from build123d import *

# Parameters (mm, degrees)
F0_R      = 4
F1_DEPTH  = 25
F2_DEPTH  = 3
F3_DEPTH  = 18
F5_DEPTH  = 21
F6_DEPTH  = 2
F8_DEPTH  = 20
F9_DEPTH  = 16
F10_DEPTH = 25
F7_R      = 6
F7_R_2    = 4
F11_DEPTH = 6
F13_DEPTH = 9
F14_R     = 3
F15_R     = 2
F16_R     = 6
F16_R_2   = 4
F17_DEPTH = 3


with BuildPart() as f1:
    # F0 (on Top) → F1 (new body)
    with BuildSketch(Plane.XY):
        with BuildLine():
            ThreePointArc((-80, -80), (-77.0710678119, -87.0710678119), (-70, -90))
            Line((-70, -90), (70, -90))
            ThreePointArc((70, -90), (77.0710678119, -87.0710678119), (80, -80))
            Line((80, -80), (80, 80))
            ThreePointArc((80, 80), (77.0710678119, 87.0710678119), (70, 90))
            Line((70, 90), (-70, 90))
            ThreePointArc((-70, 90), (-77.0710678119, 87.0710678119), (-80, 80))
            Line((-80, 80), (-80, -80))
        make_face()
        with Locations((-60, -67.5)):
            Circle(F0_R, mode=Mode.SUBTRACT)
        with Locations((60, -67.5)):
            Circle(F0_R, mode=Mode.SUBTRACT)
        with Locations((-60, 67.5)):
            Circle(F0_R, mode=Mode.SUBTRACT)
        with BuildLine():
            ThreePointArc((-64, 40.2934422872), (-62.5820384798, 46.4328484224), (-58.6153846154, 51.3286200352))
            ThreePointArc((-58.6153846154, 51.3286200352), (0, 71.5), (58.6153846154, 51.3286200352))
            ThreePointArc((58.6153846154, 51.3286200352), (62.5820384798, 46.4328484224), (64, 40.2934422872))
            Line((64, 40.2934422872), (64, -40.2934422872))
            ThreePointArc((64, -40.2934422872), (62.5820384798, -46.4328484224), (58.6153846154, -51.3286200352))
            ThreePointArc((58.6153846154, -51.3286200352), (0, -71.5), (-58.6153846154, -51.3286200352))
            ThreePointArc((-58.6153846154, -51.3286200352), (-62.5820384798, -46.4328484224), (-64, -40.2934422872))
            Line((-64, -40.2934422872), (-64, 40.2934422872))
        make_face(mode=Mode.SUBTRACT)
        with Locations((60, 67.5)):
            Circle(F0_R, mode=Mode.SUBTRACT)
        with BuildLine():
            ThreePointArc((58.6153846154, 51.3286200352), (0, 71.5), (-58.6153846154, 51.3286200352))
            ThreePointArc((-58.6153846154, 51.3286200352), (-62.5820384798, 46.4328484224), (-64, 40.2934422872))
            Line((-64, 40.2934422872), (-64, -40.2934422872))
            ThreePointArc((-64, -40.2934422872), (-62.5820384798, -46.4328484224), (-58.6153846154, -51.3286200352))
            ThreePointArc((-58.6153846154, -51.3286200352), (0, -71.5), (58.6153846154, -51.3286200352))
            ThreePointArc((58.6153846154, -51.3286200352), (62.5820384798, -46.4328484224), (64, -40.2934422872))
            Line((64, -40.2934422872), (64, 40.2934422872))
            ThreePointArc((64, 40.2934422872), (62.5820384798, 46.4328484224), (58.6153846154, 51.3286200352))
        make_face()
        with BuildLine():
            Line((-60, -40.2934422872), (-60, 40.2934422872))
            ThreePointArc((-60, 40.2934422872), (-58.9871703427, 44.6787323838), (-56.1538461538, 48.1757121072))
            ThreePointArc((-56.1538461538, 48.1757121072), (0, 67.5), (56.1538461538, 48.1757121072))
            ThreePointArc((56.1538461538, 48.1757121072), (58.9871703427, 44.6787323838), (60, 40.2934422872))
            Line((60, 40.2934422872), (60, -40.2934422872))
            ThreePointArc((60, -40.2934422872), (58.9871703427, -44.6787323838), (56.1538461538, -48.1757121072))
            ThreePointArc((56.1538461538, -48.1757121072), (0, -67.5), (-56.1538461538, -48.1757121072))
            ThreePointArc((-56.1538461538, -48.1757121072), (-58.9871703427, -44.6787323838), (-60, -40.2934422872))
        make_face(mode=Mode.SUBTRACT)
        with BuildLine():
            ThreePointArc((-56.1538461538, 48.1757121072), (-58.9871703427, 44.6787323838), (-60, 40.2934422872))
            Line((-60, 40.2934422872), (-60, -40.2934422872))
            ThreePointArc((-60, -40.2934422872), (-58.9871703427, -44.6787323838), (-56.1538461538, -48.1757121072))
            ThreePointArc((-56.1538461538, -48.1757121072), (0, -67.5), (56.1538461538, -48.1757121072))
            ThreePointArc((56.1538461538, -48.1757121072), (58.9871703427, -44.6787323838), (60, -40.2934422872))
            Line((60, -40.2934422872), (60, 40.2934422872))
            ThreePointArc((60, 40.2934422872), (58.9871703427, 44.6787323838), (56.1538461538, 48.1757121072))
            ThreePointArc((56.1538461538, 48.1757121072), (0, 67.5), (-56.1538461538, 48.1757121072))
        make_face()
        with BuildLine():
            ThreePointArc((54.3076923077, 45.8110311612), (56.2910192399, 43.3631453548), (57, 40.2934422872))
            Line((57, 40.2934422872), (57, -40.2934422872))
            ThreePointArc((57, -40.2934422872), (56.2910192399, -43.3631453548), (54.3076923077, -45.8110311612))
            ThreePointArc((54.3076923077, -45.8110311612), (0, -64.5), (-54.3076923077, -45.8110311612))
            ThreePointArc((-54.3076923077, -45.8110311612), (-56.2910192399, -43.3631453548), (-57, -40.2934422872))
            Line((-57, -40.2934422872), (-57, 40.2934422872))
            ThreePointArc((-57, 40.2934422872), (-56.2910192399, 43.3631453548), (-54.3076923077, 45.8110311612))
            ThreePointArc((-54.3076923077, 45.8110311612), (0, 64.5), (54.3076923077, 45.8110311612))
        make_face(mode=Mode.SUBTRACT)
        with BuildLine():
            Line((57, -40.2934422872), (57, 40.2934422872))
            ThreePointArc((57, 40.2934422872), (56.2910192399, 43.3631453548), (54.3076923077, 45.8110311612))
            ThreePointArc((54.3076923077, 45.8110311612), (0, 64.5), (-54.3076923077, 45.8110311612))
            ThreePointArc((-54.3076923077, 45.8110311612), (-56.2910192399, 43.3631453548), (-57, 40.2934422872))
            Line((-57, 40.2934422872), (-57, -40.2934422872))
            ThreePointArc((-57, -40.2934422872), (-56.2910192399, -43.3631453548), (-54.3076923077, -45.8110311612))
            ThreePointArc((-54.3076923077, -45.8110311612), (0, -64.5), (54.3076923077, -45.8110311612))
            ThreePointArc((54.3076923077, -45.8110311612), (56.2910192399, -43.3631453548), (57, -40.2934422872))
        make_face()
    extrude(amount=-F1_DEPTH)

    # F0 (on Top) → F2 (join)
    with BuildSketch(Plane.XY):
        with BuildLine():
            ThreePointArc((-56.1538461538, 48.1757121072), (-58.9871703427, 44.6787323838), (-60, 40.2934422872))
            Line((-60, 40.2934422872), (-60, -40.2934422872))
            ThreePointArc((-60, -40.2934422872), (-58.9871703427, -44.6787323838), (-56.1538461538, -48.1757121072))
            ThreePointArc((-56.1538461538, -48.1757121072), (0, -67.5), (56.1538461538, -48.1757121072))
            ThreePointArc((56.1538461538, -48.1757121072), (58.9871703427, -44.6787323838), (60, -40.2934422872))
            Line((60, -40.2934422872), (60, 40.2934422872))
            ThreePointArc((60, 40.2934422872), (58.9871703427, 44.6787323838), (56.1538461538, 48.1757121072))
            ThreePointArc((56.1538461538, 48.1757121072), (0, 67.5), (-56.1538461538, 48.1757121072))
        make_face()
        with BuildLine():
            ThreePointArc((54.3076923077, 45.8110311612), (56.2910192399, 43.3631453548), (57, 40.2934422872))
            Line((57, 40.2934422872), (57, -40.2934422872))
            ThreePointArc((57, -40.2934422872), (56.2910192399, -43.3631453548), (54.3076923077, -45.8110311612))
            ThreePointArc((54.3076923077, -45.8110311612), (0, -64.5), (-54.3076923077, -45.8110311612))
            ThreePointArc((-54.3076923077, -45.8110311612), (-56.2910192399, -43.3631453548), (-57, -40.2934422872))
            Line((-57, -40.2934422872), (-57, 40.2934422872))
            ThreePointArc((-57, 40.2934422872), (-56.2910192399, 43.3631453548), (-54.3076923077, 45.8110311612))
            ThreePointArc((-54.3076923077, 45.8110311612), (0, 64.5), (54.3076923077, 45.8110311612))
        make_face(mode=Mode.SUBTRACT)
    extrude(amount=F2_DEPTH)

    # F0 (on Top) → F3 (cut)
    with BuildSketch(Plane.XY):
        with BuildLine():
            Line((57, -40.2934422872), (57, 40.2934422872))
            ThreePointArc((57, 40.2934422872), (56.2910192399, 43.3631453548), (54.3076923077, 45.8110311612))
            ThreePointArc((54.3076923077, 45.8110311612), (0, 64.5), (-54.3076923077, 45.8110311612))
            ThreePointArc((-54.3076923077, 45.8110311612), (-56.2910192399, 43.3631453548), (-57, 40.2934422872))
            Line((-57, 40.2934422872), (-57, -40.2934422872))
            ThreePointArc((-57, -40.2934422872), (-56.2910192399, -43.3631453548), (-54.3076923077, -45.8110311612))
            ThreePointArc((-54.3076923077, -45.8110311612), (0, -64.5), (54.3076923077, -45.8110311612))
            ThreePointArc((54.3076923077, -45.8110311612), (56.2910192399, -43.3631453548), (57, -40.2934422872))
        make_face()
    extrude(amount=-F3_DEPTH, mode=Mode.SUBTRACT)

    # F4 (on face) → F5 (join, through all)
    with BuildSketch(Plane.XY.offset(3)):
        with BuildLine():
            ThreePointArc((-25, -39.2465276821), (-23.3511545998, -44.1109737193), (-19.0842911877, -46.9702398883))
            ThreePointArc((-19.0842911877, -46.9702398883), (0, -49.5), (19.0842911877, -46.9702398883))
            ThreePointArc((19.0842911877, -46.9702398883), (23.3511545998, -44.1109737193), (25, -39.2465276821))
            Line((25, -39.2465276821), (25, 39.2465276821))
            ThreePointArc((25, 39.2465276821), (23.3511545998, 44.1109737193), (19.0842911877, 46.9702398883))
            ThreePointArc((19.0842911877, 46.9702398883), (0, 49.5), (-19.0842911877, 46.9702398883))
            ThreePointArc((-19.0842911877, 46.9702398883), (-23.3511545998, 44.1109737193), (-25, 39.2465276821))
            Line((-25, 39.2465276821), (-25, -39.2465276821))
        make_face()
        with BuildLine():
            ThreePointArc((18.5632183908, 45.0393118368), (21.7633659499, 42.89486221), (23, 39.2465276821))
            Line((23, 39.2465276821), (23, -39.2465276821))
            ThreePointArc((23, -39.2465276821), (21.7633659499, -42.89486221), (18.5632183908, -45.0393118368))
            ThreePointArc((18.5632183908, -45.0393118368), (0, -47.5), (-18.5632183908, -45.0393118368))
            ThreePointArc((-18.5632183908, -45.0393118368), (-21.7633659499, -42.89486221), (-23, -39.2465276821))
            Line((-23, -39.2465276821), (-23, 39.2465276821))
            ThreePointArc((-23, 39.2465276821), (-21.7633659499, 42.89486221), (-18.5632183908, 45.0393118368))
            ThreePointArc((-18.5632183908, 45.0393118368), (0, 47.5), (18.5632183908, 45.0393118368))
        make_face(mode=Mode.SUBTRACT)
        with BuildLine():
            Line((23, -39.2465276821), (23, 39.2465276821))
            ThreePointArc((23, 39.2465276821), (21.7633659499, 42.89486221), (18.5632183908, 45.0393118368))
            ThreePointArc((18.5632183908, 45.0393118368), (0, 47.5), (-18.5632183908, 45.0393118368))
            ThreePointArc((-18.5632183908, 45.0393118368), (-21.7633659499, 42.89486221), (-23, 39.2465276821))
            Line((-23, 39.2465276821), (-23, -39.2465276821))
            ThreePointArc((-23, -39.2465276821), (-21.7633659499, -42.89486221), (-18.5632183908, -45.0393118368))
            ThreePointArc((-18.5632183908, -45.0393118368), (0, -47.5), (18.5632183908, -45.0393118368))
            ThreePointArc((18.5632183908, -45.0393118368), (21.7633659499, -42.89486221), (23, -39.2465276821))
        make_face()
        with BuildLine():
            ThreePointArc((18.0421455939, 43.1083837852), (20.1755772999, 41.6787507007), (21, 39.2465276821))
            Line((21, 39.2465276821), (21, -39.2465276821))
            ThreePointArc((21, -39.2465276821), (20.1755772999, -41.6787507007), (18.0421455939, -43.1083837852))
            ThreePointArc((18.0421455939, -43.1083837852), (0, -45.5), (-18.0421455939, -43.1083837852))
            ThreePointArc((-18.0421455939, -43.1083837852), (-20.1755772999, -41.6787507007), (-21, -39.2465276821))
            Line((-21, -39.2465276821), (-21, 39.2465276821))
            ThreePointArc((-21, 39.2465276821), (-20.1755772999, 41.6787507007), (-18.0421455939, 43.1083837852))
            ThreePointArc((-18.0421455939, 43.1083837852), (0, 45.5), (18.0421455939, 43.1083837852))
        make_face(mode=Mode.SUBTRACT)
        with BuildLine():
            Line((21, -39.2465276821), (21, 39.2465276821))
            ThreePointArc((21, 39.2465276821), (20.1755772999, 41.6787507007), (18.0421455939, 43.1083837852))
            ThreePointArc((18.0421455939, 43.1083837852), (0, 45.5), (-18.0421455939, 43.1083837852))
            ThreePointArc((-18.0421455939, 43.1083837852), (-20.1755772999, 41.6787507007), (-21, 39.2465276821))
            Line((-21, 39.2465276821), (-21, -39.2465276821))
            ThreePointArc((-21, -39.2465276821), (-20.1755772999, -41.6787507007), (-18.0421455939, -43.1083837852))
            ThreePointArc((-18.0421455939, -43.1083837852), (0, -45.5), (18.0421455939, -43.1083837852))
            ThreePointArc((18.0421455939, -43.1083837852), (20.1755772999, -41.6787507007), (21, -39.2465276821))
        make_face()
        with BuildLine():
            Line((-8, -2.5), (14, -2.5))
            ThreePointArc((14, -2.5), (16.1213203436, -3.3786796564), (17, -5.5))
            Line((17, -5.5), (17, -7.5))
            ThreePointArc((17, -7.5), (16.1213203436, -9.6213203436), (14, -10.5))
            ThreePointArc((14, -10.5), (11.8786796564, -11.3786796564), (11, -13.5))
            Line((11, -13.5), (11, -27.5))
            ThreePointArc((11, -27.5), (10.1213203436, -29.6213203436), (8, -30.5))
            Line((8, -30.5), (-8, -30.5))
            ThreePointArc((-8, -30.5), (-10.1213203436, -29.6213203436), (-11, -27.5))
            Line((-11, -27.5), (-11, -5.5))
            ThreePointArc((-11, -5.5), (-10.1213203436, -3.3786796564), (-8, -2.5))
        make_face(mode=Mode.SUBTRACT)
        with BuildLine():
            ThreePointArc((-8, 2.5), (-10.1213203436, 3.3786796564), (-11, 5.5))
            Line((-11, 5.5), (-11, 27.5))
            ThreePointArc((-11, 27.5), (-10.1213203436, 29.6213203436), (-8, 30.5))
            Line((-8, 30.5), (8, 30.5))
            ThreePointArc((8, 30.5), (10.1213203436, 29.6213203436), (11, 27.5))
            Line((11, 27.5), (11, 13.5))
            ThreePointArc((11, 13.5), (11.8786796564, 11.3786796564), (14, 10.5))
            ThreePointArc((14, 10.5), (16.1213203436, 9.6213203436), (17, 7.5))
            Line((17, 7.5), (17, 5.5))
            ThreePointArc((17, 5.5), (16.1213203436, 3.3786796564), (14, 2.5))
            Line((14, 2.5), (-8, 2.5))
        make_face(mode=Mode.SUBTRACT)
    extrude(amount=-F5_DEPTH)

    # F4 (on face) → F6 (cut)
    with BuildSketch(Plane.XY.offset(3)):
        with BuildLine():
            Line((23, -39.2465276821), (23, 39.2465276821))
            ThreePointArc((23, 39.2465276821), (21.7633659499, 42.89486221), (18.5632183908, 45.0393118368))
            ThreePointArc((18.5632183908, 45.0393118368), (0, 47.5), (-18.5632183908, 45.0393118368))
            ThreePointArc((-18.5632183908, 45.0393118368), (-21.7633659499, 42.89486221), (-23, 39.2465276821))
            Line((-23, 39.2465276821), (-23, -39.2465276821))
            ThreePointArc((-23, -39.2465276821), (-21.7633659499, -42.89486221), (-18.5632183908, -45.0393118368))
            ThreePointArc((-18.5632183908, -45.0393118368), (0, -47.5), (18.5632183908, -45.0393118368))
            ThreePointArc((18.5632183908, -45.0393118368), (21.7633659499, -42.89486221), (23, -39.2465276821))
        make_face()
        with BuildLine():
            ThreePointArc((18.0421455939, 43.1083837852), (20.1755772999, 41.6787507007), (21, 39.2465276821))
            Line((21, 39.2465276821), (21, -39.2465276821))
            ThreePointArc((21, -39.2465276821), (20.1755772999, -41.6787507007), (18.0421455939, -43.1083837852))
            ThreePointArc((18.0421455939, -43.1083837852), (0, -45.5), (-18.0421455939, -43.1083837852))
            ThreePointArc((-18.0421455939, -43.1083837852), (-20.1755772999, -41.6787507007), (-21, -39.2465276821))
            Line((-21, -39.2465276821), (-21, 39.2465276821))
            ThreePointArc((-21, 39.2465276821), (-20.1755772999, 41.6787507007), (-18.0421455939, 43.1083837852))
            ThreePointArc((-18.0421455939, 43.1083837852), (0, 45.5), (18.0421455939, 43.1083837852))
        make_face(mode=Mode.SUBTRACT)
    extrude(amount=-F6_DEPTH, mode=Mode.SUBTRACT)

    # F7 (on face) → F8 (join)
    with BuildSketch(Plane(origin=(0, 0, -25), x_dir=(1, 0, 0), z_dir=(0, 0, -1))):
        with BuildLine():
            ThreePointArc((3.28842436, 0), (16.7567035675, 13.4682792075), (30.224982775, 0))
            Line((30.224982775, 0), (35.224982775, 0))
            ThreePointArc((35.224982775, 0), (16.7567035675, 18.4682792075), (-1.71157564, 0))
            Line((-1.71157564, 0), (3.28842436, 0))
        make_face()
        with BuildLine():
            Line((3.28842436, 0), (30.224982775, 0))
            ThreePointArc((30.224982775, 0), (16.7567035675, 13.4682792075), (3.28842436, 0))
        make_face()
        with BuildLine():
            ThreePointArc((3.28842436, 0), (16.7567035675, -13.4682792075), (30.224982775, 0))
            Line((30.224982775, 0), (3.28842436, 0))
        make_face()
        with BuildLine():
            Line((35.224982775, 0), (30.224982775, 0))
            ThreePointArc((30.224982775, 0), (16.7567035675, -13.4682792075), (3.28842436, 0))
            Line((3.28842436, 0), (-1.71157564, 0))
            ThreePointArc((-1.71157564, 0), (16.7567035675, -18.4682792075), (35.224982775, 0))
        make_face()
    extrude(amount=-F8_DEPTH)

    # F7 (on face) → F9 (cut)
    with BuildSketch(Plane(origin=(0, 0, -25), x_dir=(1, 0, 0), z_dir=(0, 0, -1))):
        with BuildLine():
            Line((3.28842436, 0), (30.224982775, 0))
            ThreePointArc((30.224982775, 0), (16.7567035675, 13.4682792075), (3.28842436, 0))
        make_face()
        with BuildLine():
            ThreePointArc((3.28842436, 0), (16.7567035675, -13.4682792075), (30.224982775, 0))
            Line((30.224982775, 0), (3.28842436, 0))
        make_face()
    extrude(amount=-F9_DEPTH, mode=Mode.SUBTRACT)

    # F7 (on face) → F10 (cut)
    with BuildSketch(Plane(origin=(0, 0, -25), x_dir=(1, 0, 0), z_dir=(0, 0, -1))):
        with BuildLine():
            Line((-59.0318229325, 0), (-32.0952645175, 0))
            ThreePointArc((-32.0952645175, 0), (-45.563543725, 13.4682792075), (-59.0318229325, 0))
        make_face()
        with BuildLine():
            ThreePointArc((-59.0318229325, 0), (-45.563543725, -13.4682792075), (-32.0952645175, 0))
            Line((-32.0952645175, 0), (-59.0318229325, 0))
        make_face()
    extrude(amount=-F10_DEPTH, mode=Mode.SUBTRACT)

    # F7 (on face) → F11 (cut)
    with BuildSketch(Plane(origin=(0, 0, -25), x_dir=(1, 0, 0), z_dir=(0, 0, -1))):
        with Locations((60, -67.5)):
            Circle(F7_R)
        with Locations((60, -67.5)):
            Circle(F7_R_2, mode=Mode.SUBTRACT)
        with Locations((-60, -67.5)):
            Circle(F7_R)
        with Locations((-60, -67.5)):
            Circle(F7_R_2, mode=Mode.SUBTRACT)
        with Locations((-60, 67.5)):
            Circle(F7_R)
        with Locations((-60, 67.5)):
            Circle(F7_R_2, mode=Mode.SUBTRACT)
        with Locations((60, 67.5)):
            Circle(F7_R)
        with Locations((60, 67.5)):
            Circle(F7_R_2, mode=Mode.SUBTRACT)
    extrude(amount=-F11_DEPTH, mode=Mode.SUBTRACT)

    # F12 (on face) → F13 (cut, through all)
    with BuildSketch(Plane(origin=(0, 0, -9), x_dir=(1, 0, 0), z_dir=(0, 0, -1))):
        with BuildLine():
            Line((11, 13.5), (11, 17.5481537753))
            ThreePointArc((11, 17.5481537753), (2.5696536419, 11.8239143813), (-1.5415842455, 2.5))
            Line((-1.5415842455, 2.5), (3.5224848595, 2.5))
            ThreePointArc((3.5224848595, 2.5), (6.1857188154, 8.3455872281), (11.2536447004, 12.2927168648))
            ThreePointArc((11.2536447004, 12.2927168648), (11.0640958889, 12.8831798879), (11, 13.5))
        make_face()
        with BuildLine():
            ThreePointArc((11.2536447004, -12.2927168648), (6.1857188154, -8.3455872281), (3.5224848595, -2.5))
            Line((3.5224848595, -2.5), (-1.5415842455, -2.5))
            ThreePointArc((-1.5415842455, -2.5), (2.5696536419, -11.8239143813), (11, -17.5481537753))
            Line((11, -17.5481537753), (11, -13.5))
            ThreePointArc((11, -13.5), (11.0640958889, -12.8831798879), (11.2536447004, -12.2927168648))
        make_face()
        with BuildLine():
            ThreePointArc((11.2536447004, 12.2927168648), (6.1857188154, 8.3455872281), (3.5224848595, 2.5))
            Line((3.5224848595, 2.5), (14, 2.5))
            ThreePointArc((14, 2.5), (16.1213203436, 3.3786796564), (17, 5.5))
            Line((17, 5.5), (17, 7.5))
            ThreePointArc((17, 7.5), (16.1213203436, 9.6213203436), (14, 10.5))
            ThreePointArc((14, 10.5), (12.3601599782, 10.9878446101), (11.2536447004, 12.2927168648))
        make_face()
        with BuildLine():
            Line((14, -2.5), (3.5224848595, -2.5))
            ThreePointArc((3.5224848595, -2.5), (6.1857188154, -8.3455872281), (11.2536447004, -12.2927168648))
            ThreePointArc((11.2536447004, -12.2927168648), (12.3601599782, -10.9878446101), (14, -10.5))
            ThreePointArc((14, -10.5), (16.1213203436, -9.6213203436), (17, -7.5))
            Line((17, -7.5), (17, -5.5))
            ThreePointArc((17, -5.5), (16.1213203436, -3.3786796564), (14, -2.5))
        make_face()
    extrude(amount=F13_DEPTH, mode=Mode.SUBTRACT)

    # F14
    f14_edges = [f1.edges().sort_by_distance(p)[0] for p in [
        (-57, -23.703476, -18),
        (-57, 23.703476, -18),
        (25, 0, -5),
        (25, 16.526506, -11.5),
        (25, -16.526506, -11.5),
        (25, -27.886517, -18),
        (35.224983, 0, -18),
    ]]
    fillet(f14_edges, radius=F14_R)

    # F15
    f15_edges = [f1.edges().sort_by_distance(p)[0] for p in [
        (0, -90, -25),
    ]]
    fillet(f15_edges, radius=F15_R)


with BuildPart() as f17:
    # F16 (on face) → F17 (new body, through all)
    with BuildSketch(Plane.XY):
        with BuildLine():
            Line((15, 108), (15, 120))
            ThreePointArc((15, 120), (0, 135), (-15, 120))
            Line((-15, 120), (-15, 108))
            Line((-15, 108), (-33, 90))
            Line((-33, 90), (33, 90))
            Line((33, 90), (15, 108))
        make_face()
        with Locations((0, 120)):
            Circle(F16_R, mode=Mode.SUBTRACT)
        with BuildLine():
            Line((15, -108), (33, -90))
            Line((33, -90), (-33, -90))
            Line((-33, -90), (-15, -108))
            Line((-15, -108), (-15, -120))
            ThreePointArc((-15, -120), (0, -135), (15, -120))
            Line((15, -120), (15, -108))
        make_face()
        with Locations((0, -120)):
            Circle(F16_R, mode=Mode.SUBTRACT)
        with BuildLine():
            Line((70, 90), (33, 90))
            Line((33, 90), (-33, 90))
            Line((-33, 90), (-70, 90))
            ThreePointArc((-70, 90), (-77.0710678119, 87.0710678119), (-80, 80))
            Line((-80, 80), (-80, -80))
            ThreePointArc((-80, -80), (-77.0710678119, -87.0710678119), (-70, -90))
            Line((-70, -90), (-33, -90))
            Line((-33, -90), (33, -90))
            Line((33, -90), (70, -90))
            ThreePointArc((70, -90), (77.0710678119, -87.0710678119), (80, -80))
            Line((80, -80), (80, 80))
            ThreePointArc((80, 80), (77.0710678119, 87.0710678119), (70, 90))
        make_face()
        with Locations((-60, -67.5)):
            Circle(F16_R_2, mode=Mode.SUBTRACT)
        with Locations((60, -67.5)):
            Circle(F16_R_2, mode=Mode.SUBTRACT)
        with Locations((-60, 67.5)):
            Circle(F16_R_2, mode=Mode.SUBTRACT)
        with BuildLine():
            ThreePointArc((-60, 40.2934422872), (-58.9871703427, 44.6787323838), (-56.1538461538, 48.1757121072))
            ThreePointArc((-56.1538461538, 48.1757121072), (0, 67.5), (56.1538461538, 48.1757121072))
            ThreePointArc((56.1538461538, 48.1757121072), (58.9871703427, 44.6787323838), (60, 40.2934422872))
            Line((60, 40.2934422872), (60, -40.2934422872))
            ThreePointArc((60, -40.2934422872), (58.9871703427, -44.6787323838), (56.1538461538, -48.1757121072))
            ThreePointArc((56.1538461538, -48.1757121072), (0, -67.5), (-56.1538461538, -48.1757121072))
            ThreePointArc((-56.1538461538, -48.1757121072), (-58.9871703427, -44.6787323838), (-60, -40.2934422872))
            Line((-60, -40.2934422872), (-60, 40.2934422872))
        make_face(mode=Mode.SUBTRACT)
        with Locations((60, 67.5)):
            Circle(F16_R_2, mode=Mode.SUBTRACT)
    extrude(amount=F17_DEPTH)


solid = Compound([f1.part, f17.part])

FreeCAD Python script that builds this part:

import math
import FreeCAD as App
import Part
import Sketcher

V = App.Vector
Q = App.Units.Quantity


def edges_at(feature, points):
    """Names of the edges that pass closest to the given points."""
    edges = feature.Shape.Edges
    near = lambda p: min(range(len(edges)), key=lambda i: edges[i].distToShape(Part.Vertex(*p))[0])
    return sorted({f"Edge{near(p) + 1}" for p in points})

doc = App.newDocument("Part")
body = doc.addObject("PartDesign::Body", "Body")

sketch1 = body.newObject("Sketcher::SketchObject", "Sketch")
sketch1.AttachmentSupport = (doc.getObject("XY_Plane"), [""])
sketch1.MapMode = "FlatFace"
sketch1.addGeometry([
    Part.ArcOfCircle(Part.Circle(V(-70, -80, 0), V(0, 0, 1), 10), math.radians(180), math.radians(270)),
    Part.LineSegment(V(-70, -90, 0), V(70, -90, 0)),
    Part.ArcOfCircle(Part.Circle(V(70, -80, 0), V(0, 0, 1), 10), math.radians(-90), math.radians(0)),
    Part.LineSegment(V(80, -80, 0), V(80, 80, 0)),
    Part.ArcOfCircle(Part.Circle(V(70, 80, 0), V(0, 0, 1), 10), math.radians(0), math.radians(90)),
    Part.LineSegment(V(70, 90, 0), V(-70, 90, 0)),
    Part.ArcOfCircle(Part.Circle(V(-70, 80, 0), V(0, 0, 1), 10), math.radians(90), math.radians(180)),
    Part.LineSegment(V(-80, 80, 0), V(-80, -80, 0)),
    Part.Circle(V(-60, -67.5, 0), V(0, 0, 1), 4),
    Part.Circle(V(60, -67.5, 0), V(0, 0, 1), 4),
    Part.Circle(V(-60, 67.5, 0), V(0, 0, 1), 4),
    Part.Circle(V(60, 67.5, 0), V(0, 0, 1), 4),
], False)
sketch1.addConstraint([
    Sketcher.Constraint("Tangent", 0, 2, 1, 1),
    Sketcher.Constraint("Tangent", 1, 2, 2, 1),
    Sketcher.Constraint("Tangent", 2, 2, 3, 1),
    Sketcher.Constraint("Tangent", 3, 2, 4, 1),
    Sketcher.Constraint("Tangent", 4, 2, 5, 1),
    Sketcher.Constraint("Tangent", 5, 2, 6, 1),
    Sketcher.Constraint("Tangent", 6, 2, 7, 1),
    Sketcher.Constraint("Tangent", 7, 2, 0, 1),
    Sketcher.Constraint("Horizontal", 1),
    Sketcher.Constraint("Vertical", 3),
    Sketcher.Constraint("Horizontal", 5),
    Sketcher.Constraint("Vertical", 7),
    Sketcher.Constraint("Equal", 0, 2),
    Sketcher.Constraint("Equal", 2, 4),
    Sketcher.Constraint("Equal", 4, 6),
    Sketcher.Constraint("Equal", 8, 9),
    Sketcher.Constraint("Equal", 9, 10),
    Sketcher.Constraint("Equal", 10, 11),
    Sketcher.Constraint("Symmetric", 0, 3, 4, 3, -1, 1),
    Sketcher.Constraint("Symmetric", 9, 3, 10, 3, -1, 1),
    Sketcher.Constraint("Symmetric", 8, 3, 11, 3, -1, 1),
    Sketcher.Constraint("Symmetric", 8, 3, 9, 3, -2),
    Sketcher.Constraint("Diameter", 8, Q("8 mm")),
    Sketcher.Constraint("Radius", 0, Q("10 mm")),
    Sketcher.Constraint("DistanceX", 1, 1, 1, 2, Q("140 mm")),
    Sketcher.Constraint("DistanceY", 3, 1, 3, 2, Q("160 mm")),
    Sketcher.Constraint("DistanceX", 8, 3, -1, 1, Q("60 mm")),
    Sketcher.Constraint("DistanceY", 8, 3, 10, 3, Q("135 mm")),
])
pad1 = body.newObject("PartDesign::Pad", "Pad")
pad1.Profile = sketch1
pad1.Length = 25
pad1.Reversed = True

sketch2 = body.newObject("Sketcher::SketchObject", "Sketch001")
sketch2.AttachmentSupport = (doc.getObject("XY_Plane"), [""])
sketch2.MapMode = "FlatFace"
sketch2.addGeometry([
    Part.ArcOfCircle(Part.Circle(V(-50, 40, 0), V(0, 0, 1), 10), math.radians(128), math.radians(180)),
    Part.LineSegment(V(-60, 40, 0), V(-60, -40, 0)),
    Part.ArcOfCircle(Part.Circle(V(-50, -40, 0), V(0, 0, 1), 10), math.radians(180), math.radians(232)),
    Part.ArcOfCircle(Part.Circle(V(0, 24, 0), V(0, 0, 1), 91), math.radians(-128), math.radians(-52)),
    Part.ArcOfCircle(Part.Circle(V(50, -40, 0), V(0, 0, 1), 10), math.radians(-52), math.radians(0)),
    Part.LineSegment(V(60, -40, 0), V(60, 40, 0)),
    Part.ArcOfCircle(Part.Circle(V(50, 40, 0), V(0, 0, 1), 10), math.radians(0), math.radians(52)),
    Part.ArcOfCircle(Part.Circle(V(0, -24, 0), V(0, 0, 1), 91), math.radians(52), math.radians(128)),
    Part.ArcOfCircle(Part.Circle(V(0, -24, 0), V(0, 0, 1), 88), math.radians(52), math.radians(128)),
    Part.ArcOfCircle(Part.Circle(V(50, 40, 0), V(0, 0, 1), 7), math.radians(0), math.radians(52)),
    Part.LineSegment(V(57, 40, 0), V(57, -40, 0)),
    Part.ArcOfCircle(Part.Circle(V(50, -40, 0), V(0, 0, 1), 7), math.radians(-52), math.radians(0)),
    Part.ArcOfCircle(Part.Circle(V(0, 24, 0), V(0, 0, 1), 88), math.radians(-128), math.radians(-52)),
    Part.ArcOfCircle(Part.Circle(V(-50, -40, 0), V(0, 0, 1), 7), math.radians(180), math.radians(232)),
    Part.LineSegment(V(-57, -40, 0), V(-57, 40, 0)),
    Part.ArcOfCircle(Part.Circle(V(-50, 40, 0), V(0, 0, 1), 7), math.radians(128), math.radians(180)),
], False)
sketch2.addConstraint([
    Sketcher.Constraint("Tangent", 0, 2, 1, 1),
    Sketcher.Constraint("Tangent", 1, 2, 2, 1),
    Sketcher.Constraint("Tangent", 2, 2, 3, 1),
    Sketcher.Constraint("Tangent", 3, 2, 4, 1),
    Sketcher.Constraint("Tangent", 4, 2, 5, 1),
    Sketcher.Constraint("Tangent", 5, 2, 6, 1),
    Sketcher.Constraint("Tangent", 6, 2, 7, 1),
    Sketcher.Constraint("Tangent", 7, 2, 0, 1),
    Sketcher.Constraint("Tangent", 8, 1, 9, 2),
    Sketcher.Constraint("Tangent", 9, 1, 10, 1),
    Sketcher.Constraint("Tangent", 10, 2, 11, 2),
    Sketcher.Constraint("Tangent", 11, 1, 12, 2),
    Sketcher.Constraint("Tangent", 12, 1, 13, 2),
    Sketcher.Constraint("Tangent", 13, 1, 14, 1),
    Sketcher.Constraint("Tangent", 14, 2, 15, 2),
    Sketcher.Constraint("Tangent", 15, 1, 8, 2),
    Sketcher.Constraint("Vertical", 1),
    Sketcher.Constraint("Vertical", 5),
    Sketcher.Constraint("Vertical", 10),
    Sketcher.Constraint("Vertical", 14),
    Sketcher.Constraint("Coincident", 8, 3, 7, 3),
    Sketcher.Constraint("Coincident", 9, 3, 6, 3),
    Sketcher.Constraint("Coincident", 11, 3, 4, 3),
    Sketcher.Constraint("Coincident", 12, 3, 3, 3),
    Sketcher.Constraint("Coincident", 13, 3, 2, 3),
    Sketcher.Constraint("Equal", 0, 2),
    Sketcher.Constraint("Equal", 2, 4),
    Sketcher.Constraint("Equal", 4, 6),
    Sketcher.Constraint("Equal", 3, 7),
    Sketcher.Constraint("Equal", 13, 15),
    Sketcher.Constraint("Symmetric", 0, 3, 4, 3, -1, 1),
    Sketcher.Constraint("Symmetric", 3, 3, 7, 3, -1),
    Sketcher.Constraint("Radius", 0, Q("10 mm")),
    Sketcher.Constraint("Radius", 9, Q("7 mm")),
    Sketcher.Constraint("Radius", 3, Q("91.25 mm")),
    Sketcher.Constraint("DistanceX", 0, 3, -1, 1, Q("50 mm")),
    Sketcher.Constraint("DistanceY", 7, 3, 3, 3, Q("47.5 mm")),
])
pad2 = body.newObject("PartDesign::Pad", "Pad001")
pad2.Profile = sketch2
pad2.Length = 3

sketch3 = body.newObject("Sketcher::SketchObject", "Sketch002")
sketch3.AttachmentSupport = (doc.getObject("XY_Plane"), [""])
sketch3.MapMode = "FlatFace"
sketch3.addGeometry([
    Part.LineSegment(V(57, -40, 0), V(57, 40, 0)),
    Part.ArcOfCircle(Part.Circle(V(50, 40, 0), V(0, 0, 1), 7), math.radians(0), math.radians(52)),
    Part.ArcOfCircle(Part.Circle(V(0, -24, 0), V(0, 0, 1), 88), math.radians(52), math.radians(128)),
    Part.ArcOfCircle(Part.Circle(V(-50, 40, 0), V(0, 0, 1), 7), math.radians(128), math.radians(180)),
    Part.LineSegment(V(-57, 40, 0), V(-57, -40, 0)),
    Part.ArcOfCircle(Part.Circle(V(-50, -40, 0), V(0, 0, 1), 7), math.radians(180), math.radians(232)),
    Part.ArcOfCircle(Part.Circle(V(0, 24, 0), V(0, 0, 1), 88), math.radians(-128), math.radians(-52)),
    Part.ArcOfCircle(Part.Circle(V(50, -40, 0), V(0, 0, 1), 7), math.radians(-52), math.radians(0)),
], False)
sketch3.addConstraint([
    Sketcher.Constraint("Tangent", 0, 2, 1, 1),
    Sketcher.Constraint("Tangent", 1, 2, 2, 1),
    Sketcher.Constraint("Tangent", 2, 2, 3, 1),
    Sketcher.Constraint("Tangent", 3, 2, 4, 1),
    Sketcher.Constraint("Tangent", 4, 2, 5, 1),
    Sketcher.Constraint("Tangent", 5, 2, 6, 1),
    Sketcher.Constraint("Tangent", 6, 2, 7, 1),
    Sketcher.Constraint("Tangent", 7, 2, 0, 1),
    Sketcher.Constraint("Vertical", 0),
    Sketcher.Constraint("Vertical", 4),
    Sketcher.Constraint("Equal", 1, 3),
    Sketcher.Constraint("Equal", 3, 5),
    Sketcher.Constraint("Equal", 2, 6),
    Sketcher.Constraint("Equal", 5, 7),
    Sketcher.Constraint("Symmetric", 1, 3, 5, 3, -1, 1),
    Sketcher.Constraint("Symmetric", 2, 3, 6, 3, -1),
    Sketcher.Constraint("Radius", 1, Q("7 mm")),
    Sketcher.Constraint("Radius", 2, Q("88.25 mm")),
    Sketcher.Constraint("DistanceX", -1, 1, 1, 3, Q("50 mm")),
    Sketcher.Constraint("DistanceY", 2, 3, 6, 3, Q("47.5 mm")),
])
pocket1 = body.newObject("PartDesign::Pocket", "Pocket")
pocket1.Profile = sketch3
pocket1.Length = 18

sketch4 = body.newObject("Sketcher::SketchObject", "Sketch003")
sketch4.AttachmentSupport = (doc.getObject("XY_Plane"), [""])
sketch4.MapMode = "FlatFace"
sketch4.AttachmentOffset = App.Placement(V(0, 0, 3), App.Rotation())
sketch4.addGeometry([
    Part.ArcOfCircle(Part.Circle(V(-17, -39.2, 0), V(0, 0, 1), 8), math.radians(180), math.radians(255)),
    Part.ArcOfCircle(Part.Circle(V(0, 23.7, 0), V(0, 0, 1), 73.2), math.radians(-105), math.radians(-75)),
    Part.ArcOfCircle(Part.Circle(V(17, -39.2, 0), V(0, 0, 1), 8), math.radians(-75), math.radians(0)),
    Part.LineSegment(V(25, -39.2, 0), V(25, 39.2, 0)),
    Part.ArcOfCircle(Part.Circle(V(17, 39.2, 0), V(0, 0, 1), 8), math.radians(0), math.radians(75)),
    Part.ArcOfCircle(Part.Circle(V(0, -23.7, 0), V(0, 0, 1), 73.2), math.radians(75), math.radians(105)),
    Part.ArcOfCircle(Part.Circle(V(-17, 39.2, 0), V(0, 0, 1), 8), math.radians(105), math.radians(180)),
    Part.LineSegment(V(-25, 39.2, 0), V(-25, -39.2, 0)),
    Part.ArcOfCircle(Part.Circle(V(-8, -5.5, 0), V(0, 0, 1), 3), math.radians(90), math.radians(180)),
    Part.LineSegment(V(-8, -2.5, 0), V(14, -2.5, 0)),
    Part.ArcOfCircle(Part.Circle(V(14, -5.5, 0), V(0, 0, 1), 3), math.radians(0), math.radians(90)),
    Part.LineSegment(V(17, -5.5, 0), V(17, -7.5, 0)),
    Part.ArcOfCircle(Part.Circle(V(14, -7.5, 0), V(0, 0, 1), 3), math.radians(-90), math.radians(0)),
    Part.ArcOfCircle(Part.Circle(V(14, -13.5, 0), V(0, 0, 1), 3), math.radians(90), math.radians(180)),
    Part.LineSegment(V(11, -13.5, 0), V(11, -27.5, 0)),
    Part.ArcOfCircle(Part.Circle(V(8, -27.5, 0), V(0, 0, 1), 3), math.radians(-90), math.radians(0)),
    Part.LineSegment(V(8, -30.5, 0), V(-8, -30.5, 0)),
    Part.ArcOfCircle(Part.Circle(V(-8, -27.5, 0), V(0, 0, 1), 3), math.radians(180), math.radians(270)),
    Part.LineSegment(V(-11, -27.5, 0), V(-11, -5.5, 0)),
    Part.LineSegment(V(14, 2.5, 0), V(-8, 2.5, 0)),
    Part.ArcOfCircle(Part.Circle(V(-8, 5.5, 0), V(0, 0, 1), 3), math.radians(180), math.radians(270)),
    Part.LineSegment(V(-11, 5.5, 0), V(-11, 27.5, 0)),
    Part.ArcOfCircle(Part.Circle(V(-8, 27.5, 0), V(0, 0, 1), 3), math.radians(90), math.radians(180)),
    Part.LineSegment(V(-8, 30.5, 0), V(8, 30.5, 0)),
    Part.ArcOfCircle(Part.Circle(V(8, 27.5, 0), V(0, 0, 1), 3), math.radians(0), math.radians(90)),
    Part.LineSegment(V(11, 27.5, 0), V(11, 13.5, 0)),
    Part.ArcOfCircle(Part.Circle(V(14, 13.5, 0), V(0, 0, 1), 3), math.radians(180), math.radians(270)),
    Part.ArcOfCircle(Part.Circle(V(14, 7.5, 0), V(0, 0, 1), 3), math.radians(0), math.radians(90)),
    Part.LineSegment(V(17, 7.5, 0), V(17, 5.5, 0)),
    Part.ArcOfCircle(Part.Circle(V(14, 5.5, 0), V(0, 0, 1), 3), math.radians(-90), math.radians(0)),
], False)
sketch4.addConstraint([
    Sketcher.Constraint("Tangent", 0, 2, 1, 1),
    Sketcher.Constraint("Tangent", 1, 2, 2, 1),
    Sketcher.Constraint("Tangent", 2, 2, 3, 1),
    Sketcher.Constraint("Tangent", 3, 2, 4, 1),
    Sketcher.Constraint("Tangent", 4, 2, 5, 1),
    Sketcher.Constraint("Tangent", 5, 2, 6, 1),
    Sketcher.Constraint("Tangent", 6, 2, 7, 1),
    Sketcher.Constraint("Tangent", 7, 2, 0, 1),
    Sketcher.Constraint("Tangent", 8, 1, 9, 1),
    Sketcher.Constraint("Tangent", 9, 2, 10, 2),
    Sketcher.Constraint("Tangent", 10, 1, 11, 1),
    Sketcher.Constraint("Tangent", 11, 2, 12, 2),
    Sketcher.Constraint("Tangent", 12, 1, 13, 1),
    Sketcher.Constraint("Tangent", 13, 2, 14, 1),
    Sketcher.Constraint("Tangent", 14, 2, 15, 2),
    Sketcher.Constraint("Tangent", 15, 1, 16, 1),
    Sketcher.Constraint("Tangent", 16, 2, 17, 2),
    Sketcher.Constraint("Tangent", 17, 1, 18, 1),
    Sketcher.Constraint("Tangent", 18, 2, 8, 2),
    Sketcher.Constraint("Tangent", 19, 2, 20, 2),
    Sketcher.Constraint("Tangent", 20, 1, 21, 1),
    Sketcher.Constraint("Tangent", 21, 2, 22, 2),
    Sketcher.Constraint("Tangent", 22, 1, 23, 1),
    Sketcher.Constraint("Tangent", 23, 2, 24, 2),
    Sketcher.Constraint("Tangent", 24, 1, 25, 1),
    Sketcher.Constraint("Tangent", 25, 2, 26, 1),
    Sketcher.Constraint("Tangent", 26, 2, 27, 2),
    Sketcher.Constraint("Tangent", 27, 1, 28, 1),
    Sketcher.Constraint("Tangent", 28, 2, 29, 2),
    Sketcher.Constraint("Tangent", 29, 1, 19, 1),
    Sketcher.Constraint("Vertical", 3),
    Sketcher.Constraint("Vertical", 7),
    Sketcher.Constraint("Horizontal", 9),
    Sketcher.Constraint("Vertical", 11),
    Sketcher.Constraint("Vertical", 14),
    Sketcher.Constraint("Horizontal", 16),
    Sketcher.Constraint("Vertical", 18),
    Sketcher.Constraint("Horizontal", 19),
    Sketcher.Constraint("Vertical", 21),
    Sketcher.Constraint("Horizontal", 23),
    Sketcher.Constraint("Vertical", 25),
    Sketcher.Constraint("Vertical", 28),
    Sketcher.Constraint("Equal", 0, 2),
    Sketcher.Constraint("Equal", 2, 4),
    Sketcher.Constraint("Equal", 1, 5),
    Sketcher.Constraint("Equal", 4, 6),
    Sketcher.Constraint("Equal", 8, 10),
    Sketcher.Constraint("Equal", 10, 12),
    Sketcher.Constraint("Equal", 12, 13),
    Sketcher.Constraint("Equal", 13, 15),
    Sketcher.Constraint("Equal", 15, 17),
    Sketcher.Constraint("Equal", 17, 20),
    Sketcher.Constraint("Equal", 20, 22),
    Sketcher.Constraint("Equal", 22, 24),
    Sketcher.Constraint("Equal", 24, 26),
    Sketcher.Constraint("Equal", 26, 27),
    Sketcher.Constraint("Equal", 27, 29),
    Sketcher.Constraint("Symmetric", 0, 3, 4, 3, -1, 1),
    Sketcher.Constraint("Symmetric", 15, 3, 22, 3, -1, 1),
    Sketcher.Constraint("Symmetric", 1, 3, 5, 3, -1),
    Sketcher.Constraint("Symmetric", 8, 3, 20, 3, -1),
    Sketcher.Constraint("Symmetric", 13, 3, 26, 3, -1),
    Sketcher.Constraint("Vertical", 12, 3, 13, 3),
    Sketcher.Constraint("Vertical", 26, 3, 27, 3),
    Sketcher.Constraint("Vertical", 4, 3, 10, 1),
    Sketcher.Constraint("Equal", 19, 18),
    Sketcher.Constraint("Radius", 0, Q("8 mm")),
    Sketcher.Constraint("Radius", 8, Q("3 mm")),
    Sketcher.Constraint("DistanceX", 9, 1, 9, 2, Q("22 mm")),
    Sketcher.Constraint("DistanceY", 11, 2, 11, 1, Q("2 mm")),
    Sketcher.Constraint("Radius", 1, Q("73.25 mm")),
    Sketcher.Constraint("DistanceY", 8, 3, 20, 3, Q("11 mm")),
    Sketcher.Constraint("DistanceY", 5, 3, 1, 3, Q("47.5 mm")),
])
pad3 = body.newObject("PartDesign::Pad", "Pad002")
pad3.Profile = sketch4
pad3.Type = "UpToLast"
pad3.Reversed = True

sketch5 = body.newObject("Sketcher::SketchObject", "Sketch004")
sketch5.AttachmentSupport = (doc.getObject("XY_Plane"), [""])
sketch5.MapMode = "FlatFace"
sketch5.AttachmentOffset = App.Placement(V(0, 0, 3), App.Rotation())
sketch5.addGeometry([
    Part.LineSegment(V(23, -39.2, 0), V(23, 39.2, 0)),
    Part.ArcOfCircle(Part.Circle(V(17, 39.2, 0), V(0, 0, 1), 6), math.radians(0), math.radians(75)),
    Part.ArcOfCircle(Part.Circle(V(0, -23.8, 0), V(0, 0, 1), 71.3), math.radians(75), math.radians(105)),
    Part.ArcOfCircle(Part.Circle(V(-17, 39.2, 0), V(0, 0, 1), 6), math.radians(105), math.radians(180)),
    Part.LineSegment(V(-23, 39.2, 0), V(-23, -39.2, 0)),
    Part.ArcOfCircle(Part.Circle(V(-17, -39.2, 0), V(0, 0, 1), 6), math.radians(180), math.radians(255)),
    Part.ArcOfCircle(Part.Circle(V(0, 23.8, 0), V(0, 0, 1), 71.3), math.radians(-105), math.radians(-75)),
    Part.ArcOfCircle(Part.Circle(V(17, -39.2, 0), V(0, 0, 1), 6), math.radians(-75), math.radians(0)),
    Part.ArcOfCircle(Part.Circle(V(0, -23.8, 0), V(0, 0, 1), 69.2), math.radians(75), math.radians(105)),
    Part.ArcOfCircle(Part.Circle(V(17, 39.2, 0), V(0, 0, 1), 4), math.radians(0), math.radians(75)),
    Part.LineSegment(V(21, 39.2, 0), V(21, -39.2, 0)),
    Part.ArcOfCircle(Part.Circle(V(17, -39.2, 0), V(0, 0, 1), 4), math.radians(-75), math.radians(0)),
    Part.ArcOfCircle(Part.Circle(V(0, 23.8, 0), V(0, 0, 1), 69.2), math.radians(-105), math.radians(-75)),
    Part.ArcOfCircle(Part.Circle(V(-17, -39.2, 0), V(0, 0, 1), 4), math.radians(180), math.radians(255)),
    Part.LineSegment(V(-21, -39.2, 0), V(-21, 39.2, 0)),
    Part.ArcOfCircle(Part.Circle(V(-17, 39.2, 0), V(0, 0, 1), 4), math.radians(105), math.radians(180)),
], False)
sketch5.addConstraint([
    Sketcher.Constraint("Tangent", 0, 2, 1, 1),
    Sketcher.Constraint("Tangent", 1, 2, 2, 1),
    Sketcher.Constraint("Tangent", 2, 2, 3, 1),
    Sketcher.Constraint("Tangent", 3, 2, 4, 1),
    Sketcher.Constraint("Tangent", 4, 2, 5, 1),
    Sketcher.Constraint("Tangent", 5, 2, 6, 1),
    Sketcher.Constraint("Tangent", 6, 2, 7, 1),
    Sketcher.Constraint("Tangent", 7, 2, 0, 1),
    Sketcher.Constraint("Tangent", 8, 1, 9, 2),
    Sketcher.Constraint("Tangent", 9, 1, 10, 1),
    Sketcher.Constraint("Tangent", 10, 2, 11, 2),
    Sketcher.Constraint("Tangent", 11, 1, 12, 2),
    Sketcher.Constraint("Tangent", 12, 1, 13, 2),
    Sketcher.Constraint("Tangent", 13, 1, 14, 1),
    Sketcher.Constraint("Tangent", 14, 2, 15, 2),
    Sketcher.Constraint("Tangent", 15, 1, 8, 2),
    Sketcher.Constraint("Vertical", 0),
    Sketcher.Constraint("Vertical", 4),
    Sketcher.Constraint("Vertical", 10),
    Sketcher.Constraint("Vertical", 14),
    Sketcher.Constraint("Coincident", 8, 3, 2, 3),
    Sketcher.Constraint("Coincident", 9, 3, 1, 3),
    Sketcher.Constraint("Coincident", 11, 3, 7, 3),
    Sketcher.Constraint("Coincident", 12, 3, 6, 3),
    Sketcher.Constraint("Coincident", 13, 3, 5, 3),
    Sketcher.Constraint("Equal", 1, 3),
    Sketcher.Constraint("Equal", 3, 5),
    Sketcher.Constraint("Equal", 2, 6),
    Sketcher.Constraint("Equal", 5, 7),
    Sketcher.Constraint("Equal", 13, 15),
    Sketcher.Constraint("Symmetric", 1, 3, 5, 3, -1, 1),
    Sketcher.Constraint("Symmetric", 2, 3, 6, 3, -1),
    Sketcher.Constraint("Radius", 1, Q("6 mm")),
    Sketcher.Constraint("Radius", 9, Q("4 mm")),
    Sketcher.Constraint("Radius", 2, Q("71.25 mm")),
    Sketcher.Constraint("DistanceX", -1, 1, 1, 3, Q("17 mm")),
    Sketcher.Constraint("DistanceY", 2, 3, 6, 3, Q("47.5 mm")),
])
pocket2 = body.newObject("PartDesign::Pocket", "Pocket001")
pocket2.Profile = sketch5
pocket2.Length = 2

sketch6 = body.newObject("Sketcher::SketchObject", "Sketch005")
sketch6.AttachmentSupport = (doc.getObject("XY_Plane"), [""])
sketch6.MapMode = "FlatFace"
sketch6.AttachmentOffset = App.Placement(V(0, 0, -25), App.Rotation())
sketch6.addGeometry(Part.Circle(V(17, 0, 0), V(0, 0, 1), 18), False)
sketch6.addConstraint([
    Sketcher.Constraint("PointOnObject", 0, 3, -1),
    Sketcher.Constraint("Diameter", 0, Q("36.936558 mm")),
    Sketcher.Constraint("DistanceX", -1, 1, 0, 3, Q("16.756704 mm")),
])
pad4 = body.newObject("PartDesign::Pad", "Pad003")
pad4.Profile = sketch6
pad4.Length = 20

sketch7 = body.newObject("Sketcher::SketchObject", "Sketch006")
sketch7.AttachmentSupport = (doc.getObject("XY_Plane"), [""])
sketch7.MapMode = "FlatFace"
sketch7.AttachmentOffset = App.Placement(V(0, 0, -25), App.Rotation())
sketch7.addGeometry(Part.Circle(V(17, 0, 0), V(0, 0, 1), 13), False)
sketch7.addConstraint([
    Sketcher.Constraint("PointOnObject", 0, 3, -1),
    Sketcher.Constraint("Diameter", 0, Q("26.936558 mm")),
    Sketcher.Constraint("DistanceX", -1, 1, 0, 3, Q("16.756704 mm")),
])
pocket3 = body.newObject("PartDesign::Pocket", "Pocket002")
pocket3.Profile = sketch7
pocket3.Length = 16
pocket3.Reversed = True

sketch8 = body.newObject("Sketcher::SketchObject", "Sketch007")
sketch8.AttachmentSupport = (doc.getObject("XY_Plane"), [""])
sketch8.MapMode = "FlatFace"
sketch8.AttachmentOffset = App.Placement(V(0, 0, -25), App.Rotation())
sketch8.addGeometry(Part.Circle(V(-46, 0, 0), V(0, 0, 1), 13), False)
sketch8.addConstraint([
    Sketcher.Constraint("PointOnObject", 0, 3, -1),
    Sketcher.Constraint("Diameter", 0, Q("26.936558 mm")),
    Sketcher.Constraint("DistanceX", 0, 3, -1, 1, Q("45.563544 mm")),
])
pocket4 = body.newObject("PartDesign::Pocket", "Pocket003")
pocket4.Profile = sketch8
pocket4.Length = 25
pocket4.Reversed = True

sketch9 = body.newObject("Sketcher::SketchObject", "Sketch008")
sketch9.AttachmentSupport = (doc.getObject("XY_Plane"), [""])
sketch9.MapMode = "FlatFace"
sketch9.AttachmentOffset = App.Placement(V(0, 0, -25), App.Rotation())
sketch9.addGeometry([
    Part.Circle(V(60, 67.5, 0), V(0, 0, 1), 6),
    Part.Circle(V(60, 67.5, 0), V(0, 0, 1), 4),
    Part.Circle(V(-60, 67.5, 0), V(0, 0, 1), 6),
    Part.Circle(V(-60, 67.5, 0), V(0, 0, 1), 4),
    Part.Circle(V(-60, -67.5, 0), V(0, 0, 1), 6),
    Part.Circle(V(-60, -67.5, 0), V(0, 0, 1), 4),
    Part.Circle(V(60, -67.5, 0), V(0, 0, 1), 6),
    Part.Circle(V(60, -67.5, 0), V(0, 0, 1), 4),
], False)
sketch9.addConstraint([
    Sketcher.Constraint("Coincident", 1, 3, 0, 3),
    Sketcher.Constraint("Coincident", 3, 3, 2, 3),
    Sketcher.Constraint("Coincident", 5, 3, 4, 3),
    Sketcher.Constraint("Coincident", 7, 3, 6, 3),
    Sketcher.Constraint("Equal", 0, 2),
    Sketcher.Constraint("Equal", 1, 3),
    Sketcher.Constraint("Equal", 2, 4),
    Sketcher.Constraint("Equal", 3, 5),
    Sketcher.Constraint("Equal", 4, 6),
    Sketcher.Constraint("Equal", 5, 7),
    Sketcher.Constraint("Symmetric", 0, 3, 4, 3, -1, 1),
    Sketcher.Constraint("Symmetric", 2, 3, 6, 3, -1, 1),
    Sketcher.Constraint("Symmetric", 0, 3, 2, 3, -2),
    Sketcher.Constraint("Diameter", 0, Q("12 mm")),
    Sketcher.Constraint("Diameter", 1, Q("8 mm")),
    Sketcher.Constraint("DistanceX", -1, 1, 0, 3, Q("60 mm")),
    Sketcher.Constraint("DistanceY", 4, 3, 2, 3, Q("135 mm")),
])
pocket5 = body.newObject("PartDesign::Pocket", "Pocket004")
pocket5.Profile = sketch9
pocket5.Length = 6
pocket5.Reversed = True

sketch10 = body.newObject("Sketcher::SketchObject", "Sketch009")
sketch10.AttachmentSupport = (doc.getObject("XY_Plane"), [""])
sketch10.MapMode = "FlatFace"
sketch10.AttachmentOffset = App.Placement(V(0, 0, -9), App.Rotation())
sketch10.addGeometry([
    Part.LineSegment(V(11, -13.5, 0), V(11, -17.5, 0)),
    Part.ArcOfCircle(Part.Circle(V(16.8, 0, 0), V(0, 0, 1), 18.5), math.radians(-172), math.radians(-108)),
    Part.LineSegment(V(-1.5, -2.5, 0), V(14, -2.5, 0)),
    Part.ArcOfCircle(Part.Circle(V(14, -5.5, 0), V(0, 0, 1), 3), math.radians(0), math.radians(90)),
    Part.LineSegment(V(17, -5.5, 0), V(17, -7.5, 0)),
    Part.ArcOfCircle(Part.Circle(V(14, -7.5, 0), V(0, 0, 1), 3), math.radians(-90), math.radians(0)),
    Part.ArcOfCircle(Part.Circle(V(14, -13.5, 0), V(0, 0, 1), 3), math.radians(90), math.radians(156)),
    Part.ArcOfCircle(Part.Circle(V(14, -13.5, 0), V(0, 0, 1), 3), math.radians(156), math.radians(180)),
    Part.ArcOfCircle(Part.Circle(V(16.8, 0, 0), V(0, 0, 1), 18.5), math.radians(108), math.radians(172)),
    Part.LineSegment(V(11, 17.5, 0), V(11, 13.5, 0)),
    Part.ArcOfCircle(Part.Circle(V(14, 13.5, 0), V(0, 0, 1), 3), math.radians(180), math.radians(204)),
    Part.ArcOfCircle(Part.Circle(V(14, 13.5, 0), V(0, 0, 1), 3), math.radians(-156), math.radians(-90)),
    Part.ArcOfCircle(Part.Circle(V(14, 7.5, 0), V(0, 0, 1), 3), math.radians(0), math.radians(90)),
    Part.LineSegment(V(17, 7.5, 0), V(17, 5.5, 0)),
    Part.ArcOfCircle(Part.Circle(V(14, 5.5, 0), V(0, 0, 1), 3), math.radians(-90), math.radians(0)),
    Part.LineSegment(V(14, 2.5, 0), V(-1.5, 2.5, 0)),
], False)
sketch10.addConstraint([
    Sketcher.Constraint("Coincident", 0, 2, 1, 2),
    Sketcher.Constraint("Coincident", 1, 1, 2, 1),
    Sketcher.Constraint("Tangent", 2, 2, 3, 2),
    Sketcher.Constraint("Tangent", 3, 1, 4, 1),
    Sketcher.Constraint("Tangent", 4, 2, 5, 2),
    Sketcher.Constraint("Tangent", 5, 1, 6, 1),
    Sketcher.Constraint("Tangent", 6, 2, 7, 1),
    Sketcher.Constraint("Tangent", 7, 2, 0, 1),
    Sketcher.Constraint("Coincident", 8, 1, 9, 1),
    Sketcher.Constraint("Tangent", 9, 2, 10, 1),
    Sketcher.Constraint("Tangent", 10, 2, 11, 1),
    Sketcher.Constraint("Tangent", 11, 2, 12, 2),
    Sketcher.Constraint("Tangent", 12, 1, 13, 1),
    Sketcher.Constraint("Tangent", 13, 2, 14, 2),
    Sketcher.Constraint("Tangent", 14, 1, 15, 1),
    Sketcher.Constraint("Coincident", 15, 2, 8, 2),
    Sketcher.Constraint("Vertical", 0),
    Sketcher.Constraint("Horizontal", 2),
    Sketcher.Constraint("Vertical", 4),
    Sketcher.Constraint("Vertical", 9),
    Sketcher.Constraint("Vertical", 13),
    Sketcher.Constraint("Horizontal", 15),
    Sketcher.Constraint("Coincident", 8, 3, 1, 3),
    Sketcher.Constraint("Equal", 3, 5),
    Sketcher.Constraint("Equal", 5, 6),
    Sketcher.Constraint("Equal", 6, 7),
    Sketcher.Constraint("Equal", 1, 8),
    Sketcher.Constraint("Equal", 7, 10),
    Sketcher.Constraint("Equal", 10, 11),
    Sketcher.Constraint("Equal", 11, 12),
    Sketcher.Constraint("Equal", 12, 14),
    Sketcher.Constraint("Symmetric", 6, 3, 10, 3, -1),
    Sketcher.Constraint("Symmetric", 3, 3, 14, 3, -1),
    Sketcher.Constraint("PointOnObject", 1, 3, -1),
    Sketcher.Constraint("Vertical", 5, 3, 6, 3),
    Sketcher.Constraint("Vertical", 6, 2, 10, 2),
    Sketcher.Constraint("Radius", 3, Q("3 mm")),
    Sketcher.Constraint("DistanceY", 4, 2, 4, 1, Q("2 mm")),
    Sketcher.Constraint("DistanceX", -1, 1, 3, 3, Q("14 mm")),
    Sketcher.Constraint("DistanceY", 3, 3, 10, 3, Q("19 mm")),
    Sketcher.Constraint("Radius", 1, Q("18.468279 mm")),
    Sketcher.Constraint("DistanceX", 2, 1, 2, 2, Q("15.541584 mm")),
    Sketcher.Constraint("DistanceX", 15, 2, 10, 2, Q("12.795229 mm")),
])
pocket6 = body.newObject("PartDesign::Pocket", "Pocket005")
pocket6.Profile = sketch10
pocket6.Length = 9
doc.recompute()

fillet = body.newObject("PartDesign::Fillet", "Fillet")
fillet.Base = (pocket6, edges_at(pocket6, [
    (-57, -23.703, -18),
    (-57, 23.703, -18),
    (25, 0, -5),
    (25, 16.527, -11.5),
    (25, -16.527, -11.5),
    (25, -27.887, -18),
    (35.225, 0, -18),
]))
fillet.Radius = 3
doc.recompute()

fillet2 = body.newObject("PartDesign::Fillet", "Fillet001")
fillet2.Base = (fillet, edges_at(fillet, [(0, -90, -25)]))
fillet2.Radius = 2
body2 = doc.addObject("PartDesign::Body", "Body001")

sketch11 = body2.newObject("Sketcher::SketchObject", "Sketch010")
sketch11.AttachmentSupport = (doc.getObject("XY_Plane001"), [""])
sketch11.MapMode = "FlatFace"
sketch11.addGeometry([
    Part.LineSegment(V(15, 108, 0), V(15, 120, 0)),
    Part.ArcOfCircle(Part.Circle(V(0, 120, 0), V(0, 0, 1), 15), math.radians(0), math.radians(180)),
    Part.LineSegment(V(-15, 120, 0), V(-15, 108, 0)),
    Part.LineSegment(V(-15, 108, 0), V(-33, 90, 0)),
    Part.LineSegment(V(-33, 90, 0), V(-70, 90, 0)),
    Part.ArcOfCircle(Part.Circle(V(-70, 80, 0), V(0, 0, 1), 10), math.radians(90), math.radians(180)),
    Part.LineSegment(V(-80, 80, 0), V(-80, -80, 0)),
    Part.ArcOfCircle(Part.Circle(V(-70, -80, 0), V(0, 0, 1), 10), math.radians(180), math.radians(270)),
    Part.LineSegment(V(-70, -90, 0), V(-33, -90, 0)),
    Part.LineSegment(V(-33, -90, 0), V(-15, -108, 0)),
    Part.LineSegment(V(-15, -108, 0), V(-15, -120, 0)),
    Part.ArcOfCircle(Part.Circle(V(0, -120, 0), V(0, 0, 1), 15), math.radians(180), math.radians(360)),
    Part.LineSegment(V(15, -120, 0), V(15, -108, 0)),
    Part.LineSegment(V(15, -108, 0), V(33, -90, 0)),
    Part.LineSegment(V(33, -90, 0), V(70, -90, 0)),
    Part.ArcOfCircle(Part.Circle(V(70, -80, 0), V(0, 0, 1), 10), math.radians(-90), math.radians(0)),
    Part.LineSegment(V(80, -80, 0), V(80, 80, 0)),
    Part.ArcOfCircle(Part.Circle(V(70, 80, 0), V(0, 0, 1), 10), math.radians(0), math.radians(90)),
    Part.LineSegment(V(70, 90, 0), V(33, 90, 0)),
    Part.LineSegment(V(33, 90, 0), V(15, 108, 0)),
    Part.Circle(V(-60, -67.5, 0), V(0, 0, 1), 4),
    Part.Circle(V(0, -120, 0), V(0, 0, 1), 6),
    Part.Circle(V(60, -67.5, 0), V(0, 0, 1), 4),
    Part.Circle(V(-60, 67.5, 0), V(0, 0, 1), 4),
    Part.LineSegment(V(-60, -40.3, 0), V(-60, 40.3, 0)),
    Part.ArcOfCircle(Part.Circle(V(-50, 40.3, 0), V(0, 0, 1), 10), math.radians(128), math.radians(180)),
    Part.ArcOfCircle(Part.Circle(V(0, -23.8, 0), V(0, 0, 1), 91.2), math.radians(52), math.radians(128)),
    Part.ArcOfCircle(Part.Circle(V(50, 40.3, 0), V(0, 0, 1), 10), math.radians(0), math.radians(52)),
    Part.LineSegment(V(60, 40.3, 0), V(60, -40.3, 0)),
    Part.ArcOfCircle(Part.Circle(V(50, -40.3, 0), V(0, 0, 1), 10), math.radians(-52), math.radians(0)),
    Part.ArcOfCircle(Part.Circle(V(0, 23.8, 0), V(0, 0, 1), 91.2), math.radians(-128), math.radians(-52)),
    Part.ArcOfCircle(Part.Circle(V(-50, -40.3, 0), V(0, 0, 1), 10), math.radians(180), math.radians(232)),
    Part.Circle(V(0, 120, 0), V(0, 0, 1), 6),
    Part.Circle(V(60, 67.5, 0), V(0, 0, 1), 4),
], False)
sketch11.addConstraint([
    Sketcher.Constraint("Tangent", 0, 2, 1, 1),
    Sketcher.Constraint("Tangent", 1, 2, 2, 1),
    Sketcher.Constraint("Coincident", 2, 2, 3, 1),
    Sketcher.Constraint("Coincident", 3, 2, 4, 1),
    Sketcher.Constraint("Tangent", 4, 2, 5, 1),
    Sketcher.Constraint("Tangent", 5, 2, 6, 1),
    Sketcher.Constraint("Tangent", 6, 2, 7, 1),
    Sketcher.Constraint("Tangent", 7, 2, 8, 1),
    Sketcher.Constraint("Coincident", 8, 2, 9, 1),
    Sketcher.Constraint("Coincident", 9, 2, 10, 1),
    Sketcher.Constraint("Tangent", 10, 2, 11, 1),
    Sketcher.Constraint("Tangent", 11, 2, 12, 1),
    Sketcher.Constraint("Coincident", 12, 2, 13, 1),
    Sketcher.Constraint("Coincident", 13, 2, 14, 1),
    Sketcher.Constraint("Tangent", 14, 2, 15, 1),
    Sketcher.Constraint("Tangent", 15, 2, 16, 1),
    Sketcher.Constraint("Tangent", 16, 2, 17, 1),
    Sketcher.Constraint("Tangent", 17, 2, 18, 1),
    Sketcher.Constraint("Coincident", 18, 2, 19, 1),
    Sketcher.Constraint("Coincident", 19, 2, 0, 1),
    Sketcher.Constraint("Tangent", 24, 2, 25, 2),
    Sketcher.Constraint("Tangent", 25, 1, 26, 2),
    Sketcher.Constraint("Tangent", 26, 1, 27, 2),
    Sketcher.Constraint("Tangent", 27, 1, 28, 1),
    Sketcher.Constraint("Tangent", 28, 2, 29, 2),
    Sketcher.Constraint("Tangent", 29, 1, 30, 2),
    Sketcher.Constraint("Tangent", 30, 1, 31, 2),
    Sketcher.Constraint("Tangent", 31, 1, 24, 1),
    Sketcher.Constraint("Vertical", 0),
    Sketcher.Constraint("Vertical", 2),
    Sketcher.Constraint("Horizontal", 4),
    Sketcher.Constraint("Vertical", 6),
    Sketcher.Constraint("Horizontal", 8),
    Sketcher.Constraint("Vertical", 10),
    Sketcher.Constraint("Vertical", 12),
    Sketcher.Constraint("Horizontal", 14),
    Sketcher.Constraint("Vertical", 16),
    Sketcher.Constraint("Horizontal", 18),
    Sketcher.Constraint("Vertical", 24),
    Sketcher.Constraint("Vertical", 28),
    Sketcher.Constraint("Coincident", 21, 3, 11, 3),
    Sketcher.Constraint("Coincident", 32, 3, 1, 3),
    Sketcher.Constraint("Equal", 5, 7),
    Sketcher.Constraint("Equal", 1, 11),
    Sketcher.Constraint("Equal", 7, 15),
    Sketcher.Constraint("Equal", 15, 17),
    Sketcher.Constraint("Equal", 20, 22),
    Sketcher.Constraint("Equal", 22, 23),
    Sketcher.Constraint("Equal", 17, 25),
    Sketcher.Constraint("Equal", 25, 27),
    Sketcher.Constraint("Equal", 27, 29),
    Sketcher.Constraint("Equal", 26, 30),
    Sketcher.Constraint("Equal", 29, 31),
    Sketcher.Constraint("Equal", 21, 32),
    Sketcher.Constraint("Equal", 23, 33),
    Sketcher.Constraint("Symmetric", 1, 3, 11, 3, -1, 1),
    Sketcher.Constraint("Symmetric", 5, 3, 15, 3, -1, 1),
    Sketcher.Constraint("Symmetric", 22, 3, 23, 3, -1, 1),
    Sketcher.Constraint("Symmetric", 25, 3, 29, 3, -1, 1),
    Sketcher.Constraint("Symmetric", 20, 3, 33, 3, -1, 1),
    Sketcher.Constraint("Symmetric", 8, 2, 18, 2, -1, 1),
    Sketcher.Constraint("Symmetric", 20, 3, 22, 3, -2),
    Sketcher.Constraint("Symmetric", 9, 2, 12, 2, -2),
    Sketcher.Constraint("Symmetric", 8, 2, 13, 2, -2),
    Sketcher.Constraint("Symmetric", 26, 3, 30, 3, -1),
    Sketcher.Constraint("Perpendicular", 3, 9),
    Sketcher.Constraint("Perpendicular", 9, 13),
    Sketcher.Constraint("Perpendicular", 13, 19),
    Sketcher.Constraint("Horizontal", 2, 2, 19, 2),
    Sketcher.Constraint("Vertical", 23, 3, 24, 2),
    Sketcher.Constraint("Diameter", 20, Q("8 mm")),
    Sketcher.Constraint("Diameter", 21, Q("12 mm")),
    Sketcher.Constraint("Radius", 1, Q("15 mm")),
    Sketcher.Constraint("Radius", 5, Q("10 mm")),
    Sketcher.Constraint("DistanceX", 4, 2, 4, 1, Q("37 mm")),
    Sketcher.Constraint("DistanceY", 0, 1, 0, 2, Q("12 mm")),
    Sketcher.Constraint("DistanceY", 6, 2, 6, 1, Q("160 mm")),
    Sketcher.Constraint("Radius", 26, Q("91.25 mm")),
    Sketcher.Constraint("DistanceY", -1, 1, 1, 3, Q("120 mm")),
    Sketcher.Constraint("DistanceX", 20, 3, -1, 1, Q("60 mm")),
    Sketcher.Constraint("DistanceY", 20, 3, 23, 3, Q("135 mm")),
    Sketcher.Constraint("DistanceY", 26, 3, 30, 3, Q("47.5 mm")),
])
pad5 = body2.newObject("PartDesign::Pad", "Pad004")
pad5.Profile = sketch11
pad5.Length = 3

doc.recompute()
